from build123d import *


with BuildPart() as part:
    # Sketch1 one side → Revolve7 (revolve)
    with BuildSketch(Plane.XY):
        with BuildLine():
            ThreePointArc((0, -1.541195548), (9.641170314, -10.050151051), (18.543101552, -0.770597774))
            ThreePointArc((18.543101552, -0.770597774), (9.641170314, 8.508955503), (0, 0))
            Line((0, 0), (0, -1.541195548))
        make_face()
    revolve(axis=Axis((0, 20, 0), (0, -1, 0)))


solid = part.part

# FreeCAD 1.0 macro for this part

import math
import FreeCAD as App
import Part
import Sketcher

doc = App.newDocument("Part")
params = doc.addObject("Spreadsheet::Sheet", "Params")
for row, (alias, value) in enumerate([
    ("revolution_angle", "360 deg"),
], start=1):
    params.set(f"A{row}", alias)
    params.set(f"B{row}", "=" + value)
    params.setAlias(f"B{row}", alias)

body = doc.addObject("PartDesign::Body", "Body")

sketch1 = body.newObject("Sketcher::SketchObject", "Sketch")
sketch1.AttachmentSupport = (doc.getObject("XY_Plane"), [""])
sketch1.MapMode = "FlatFace"
sketch1.addGeometry(Part.ArcOfCircle(Part.Circle(App.Vector(9.3, -0.8, 0), App.Vector(0, 0, 1), 9.3), math.radians(-175), math.radians(0)), False)
sketch1.addGeometry(Part.ArcOfCircle(Part.Circle(App.Vector(9.3, -0.8, 0), App.Vector(0, 0, 1), 9.3), math.radians(0), math.radians(175)), False)
sketch1.addGeometry(Part.LineSegment(App.Vector(0, 0, 0), App.Vector(0, -1.5, 0)), False)
sketch1.addConstraint(Sketcher.Constraint("Tangent", 0, 2, 1, 1))
sketch1.addConstraint(Sketcher.Constraint("Coincident", 1, 2, 2, 1))
sketch1.addConstraint(Sketcher.Constraint("Coincident", 2, 2, 0, 1))
sketch1.addConstraint(Sketcher.Constraint("Vertical", 2))
sketch1.addConstraint(Sketcher.Constraint("Coincident", 1, 2, -1, 1))
sketch1.addConstraint(Sketcher.Constraint("Equal", 0, 1))
sketch1.addConstraint(Sketcher.Constraint("Horizontal", 1, 3, 0, 2))
sketch1.addConstraint(Sketcher.Constraint("Radius", 0, 9.287563))
sketch1.addConstraint(Sketcher.Constraint("DistanceX", -1, 1, 0, 2, 18.543102))
revolution = body.newObject("PartDesign::Revolution", "Revolution")
revolution.Profile = sketch1
revolution.ReferenceAxis = (sketch1, ["V_Axis"])
revolution.setExpression("Angle", "Params.revolution_angle")

doc.recompute()
